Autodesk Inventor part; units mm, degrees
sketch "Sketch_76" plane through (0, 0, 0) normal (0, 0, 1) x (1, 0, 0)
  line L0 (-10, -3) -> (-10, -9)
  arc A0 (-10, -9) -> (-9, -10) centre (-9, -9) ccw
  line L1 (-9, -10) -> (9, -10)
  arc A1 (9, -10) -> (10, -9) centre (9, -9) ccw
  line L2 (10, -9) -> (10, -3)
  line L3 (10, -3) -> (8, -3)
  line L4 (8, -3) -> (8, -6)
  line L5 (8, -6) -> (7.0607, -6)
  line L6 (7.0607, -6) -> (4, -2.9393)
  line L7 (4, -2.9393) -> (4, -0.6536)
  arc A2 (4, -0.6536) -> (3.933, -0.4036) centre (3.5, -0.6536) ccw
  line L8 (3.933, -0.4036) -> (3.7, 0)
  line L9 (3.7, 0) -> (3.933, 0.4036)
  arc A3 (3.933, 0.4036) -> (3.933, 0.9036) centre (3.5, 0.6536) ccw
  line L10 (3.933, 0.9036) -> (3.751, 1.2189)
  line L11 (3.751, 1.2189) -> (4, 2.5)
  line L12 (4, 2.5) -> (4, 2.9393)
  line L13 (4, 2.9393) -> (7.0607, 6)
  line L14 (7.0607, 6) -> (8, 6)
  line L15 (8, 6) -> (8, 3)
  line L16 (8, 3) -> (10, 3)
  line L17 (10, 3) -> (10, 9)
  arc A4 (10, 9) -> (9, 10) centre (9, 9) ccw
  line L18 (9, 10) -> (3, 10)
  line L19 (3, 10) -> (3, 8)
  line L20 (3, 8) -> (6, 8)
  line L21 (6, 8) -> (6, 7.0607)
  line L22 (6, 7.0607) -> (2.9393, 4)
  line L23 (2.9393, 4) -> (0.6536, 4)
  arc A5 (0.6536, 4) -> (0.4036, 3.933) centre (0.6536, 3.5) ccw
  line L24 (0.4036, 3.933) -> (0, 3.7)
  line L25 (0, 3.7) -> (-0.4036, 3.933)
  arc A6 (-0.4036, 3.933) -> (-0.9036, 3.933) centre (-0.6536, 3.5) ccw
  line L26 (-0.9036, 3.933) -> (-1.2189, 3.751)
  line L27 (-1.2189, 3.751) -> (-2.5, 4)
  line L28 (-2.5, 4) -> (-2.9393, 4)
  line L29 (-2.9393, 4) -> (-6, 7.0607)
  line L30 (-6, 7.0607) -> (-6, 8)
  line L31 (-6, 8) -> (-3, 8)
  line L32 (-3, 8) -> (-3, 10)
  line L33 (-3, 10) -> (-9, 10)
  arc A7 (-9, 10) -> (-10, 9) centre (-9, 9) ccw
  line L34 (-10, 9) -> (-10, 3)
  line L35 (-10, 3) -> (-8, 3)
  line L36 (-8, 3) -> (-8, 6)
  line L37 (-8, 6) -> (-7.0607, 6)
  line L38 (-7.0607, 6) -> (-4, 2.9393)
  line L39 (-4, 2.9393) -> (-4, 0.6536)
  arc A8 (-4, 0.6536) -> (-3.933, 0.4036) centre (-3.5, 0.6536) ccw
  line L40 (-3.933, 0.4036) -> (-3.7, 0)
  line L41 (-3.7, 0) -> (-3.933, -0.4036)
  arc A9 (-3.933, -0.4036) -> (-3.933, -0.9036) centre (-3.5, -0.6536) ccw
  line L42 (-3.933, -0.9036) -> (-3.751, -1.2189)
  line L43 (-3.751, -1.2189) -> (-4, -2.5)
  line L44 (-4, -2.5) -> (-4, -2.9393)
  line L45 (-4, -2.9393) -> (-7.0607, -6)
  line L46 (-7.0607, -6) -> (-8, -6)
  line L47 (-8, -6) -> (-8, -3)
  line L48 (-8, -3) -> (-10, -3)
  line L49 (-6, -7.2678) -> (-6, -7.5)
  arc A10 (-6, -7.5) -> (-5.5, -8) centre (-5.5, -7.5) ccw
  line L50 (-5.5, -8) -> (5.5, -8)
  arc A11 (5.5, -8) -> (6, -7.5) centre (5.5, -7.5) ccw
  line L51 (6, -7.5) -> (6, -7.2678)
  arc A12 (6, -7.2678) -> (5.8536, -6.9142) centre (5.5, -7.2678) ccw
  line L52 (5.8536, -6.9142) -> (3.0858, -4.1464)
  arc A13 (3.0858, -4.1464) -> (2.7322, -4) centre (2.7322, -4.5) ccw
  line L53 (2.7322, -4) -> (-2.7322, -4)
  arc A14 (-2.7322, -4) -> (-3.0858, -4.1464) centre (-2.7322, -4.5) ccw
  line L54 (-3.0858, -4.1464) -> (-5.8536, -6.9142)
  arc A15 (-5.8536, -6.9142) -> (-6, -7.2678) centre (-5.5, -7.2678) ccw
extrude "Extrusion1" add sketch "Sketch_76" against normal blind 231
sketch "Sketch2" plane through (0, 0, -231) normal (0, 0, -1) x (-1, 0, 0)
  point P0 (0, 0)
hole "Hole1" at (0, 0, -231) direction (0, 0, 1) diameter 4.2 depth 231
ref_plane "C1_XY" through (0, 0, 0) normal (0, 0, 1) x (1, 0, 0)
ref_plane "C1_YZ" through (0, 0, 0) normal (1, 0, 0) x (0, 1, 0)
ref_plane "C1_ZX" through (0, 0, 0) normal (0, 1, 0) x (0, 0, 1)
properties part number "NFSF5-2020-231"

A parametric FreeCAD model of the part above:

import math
import FreeCAD as App
import Part
import Sketcher
from FreeCAD import Vector
Q = App.Units.Quantity

doc = App.newDocument("Part")
body = doc.addObject("PartDesign::Body", "Body")

# Sketch on XY plane
sketch1 = body.newObject("Sketcher::SketchObject", "Sketch")
sketch1.AttachmentSupport = (doc.getObject("XY_Plane"), [""])
sketch1.MapMode = "FlatFace"
sketch1.addGeometry([
    Part.LineSegment(Vector(-8, -3, 0), Vector(-10, -3, 0)),  # 0
    Part.LineSegment(Vector(-10, -3, 0), Vector(-10, -9, 0)),  # 1
    Part.ArcOfCircle(Part.Circle(Vector(-9, -9, 0), Vector(0, 0, 1), 1), math.radians(180), math.radians(270)),  # 2
    Part.LineSegment(Vector(-9, -10, 0), Vector(9, -10, 0)),  # 3
    Part.ArcOfCircle(Part.Circle(Vector(9, -9, 0), Vector(0, 0, 1), 1), math.radians(-90), math.radians(0)),  # 4
    Part.LineSegment(Vector(10, -9, 0), Vector(10, -3, 0)),  # 5
    Part.LineSegment(Vector(10, -3, 0), Vector(8, -3, 0)),  # 6
    Part.LineSegment(Vector(8, -3, 0), Vector(8, -6, 0)),  # 7
    Part.LineSegment(Vector(8, -6, 0), Vector(7.0607, -6, 0)),  # 8
    Part.LineSegment(Vector(7.0607, -6, 0), Vector(4, -2.9393, 0)),  # 9
    Part.LineSegment(Vector(4, -2.9393, 0), Vector(4, -0.6536, 0)),  # 10
    Part.ArcOfCircle(Part.Circle(Vector(3.5, -0.6536, 0), Vector(0, 0, 1), 0.5), math.radians(0), math.radians(30.000728)),  # 11
    Part.LineSegment(Vector(3.933, -0.4036, 0), Vector(3.7, 0, 0)),  # 12
    Part.LineSegment(Vector(3.7, 0, 0), Vector(3.933, 0.4036, 0)),  # 13
    Part.ArcOfCircle(Part.Circle(Vector(3.5, 0.6536, 0), Vector(0, 0, 1), 0.499989), math.radians(-30.000728), math.radians(30.000728)),  # 14
    Part.LineSegment(Vector(3.933, 0.9036, 0), Vector(3.751, 1.2189, 0)),  # 15
    Part.LineSegment(Vector(3.751, 1.2189, 0), Vector(4, 2.5, 0)),  # 16
    Part.LineSegment(Vector(4, 2.5, 0), Vector(4, 2.9393, 0)),  # 17
    Part.LineSegment(Vector(4, 2.9393, 0), Vector(7.0607, 6, 0)),  # 18
    Part.LineSegment(Vector(7.0607, 6, 0), Vector(8, 6, 0)),  # 19
    Part.LineSegment(Vector(8, 6, 0), Vector(8, 3, 0)),  # 20
    Part.LineSegment(Vector(8, 3, 0), Vector(10, 3, 0)),  # 21
    Part.LineSegment(Vector(10, 3, 0), Vector(10, 9, 0)),  # 22
    Part.ArcOfCircle(Part.Circle(Vector(9, 9, 0), Vector(0, 0, 1), 1), math.radians(0), math.radians(90)),  # 23
    Part.LineSegment(Vector(9, 10, 0), Vector(3, 10, 0)),  # 24
    Part.LineSegment(Vector(3, 10, 0), Vector(3, 8, 0)),  # 25
    Part.LineSegment(Vector(3, 8, 0), Vector(6, 8, 0)),  # 26
    Part.LineSegment(Vector(6, 8, 0), Vector(6, 7.0607, 0)),  # 27
    Part.LineSegment(Vector(6, 7.0607, 0), Vector(2.9393, 4, 0)),  # 28
    Part.LineSegment(Vector(2.9393, 4, 0), Vector(0.6536, 4, 0)),  # 29
    Part.ArcOfCircle(Part.Circle(Vector(0.6536, 3.5, 0), Vector(0, 0, 1), 0.5), math.radians(90), math.radians(120.000728)),  # 30
    Part.LineSegment(Vector(0.4036, 3.933, 0), Vector(0, 3.7, 0)),  # 31
    Part.LineSegment(Vector(0, 3.7, 0), Vector(-0.4036, 3.933, 0)),  # 32
    Part.ArcOfCircle(Part.Circle(Vector(-0.6536, 3.5, 0), Vector(0, 0, 1), 0.499989), math.radians(59.999272), math.radians(120.000728)),  # 33
    Part.LineSegment(Vector(-0.9036, 3.933, 0), Vector(-1.2189, 3.751, 0)),  # 34
    Part.LineSegment(Vector(-1.2189, 3.751, 0), Vector(-2.5, 4, 0)),  # 35
    Part.LineSegment(Vector(-2.5, 4, 0), Vector(-2.9393, 4, 0)),  # 36
    Part.LineSegment(Vector(-2.9393, 4, 0), Vector(-6, 7.0607, 0)),  # 37
    Part.LineSegment(Vector(-6, 7.0607, 0), Vector(-6, 8, 0)),  # 38
    Part.LineSegment(Vector(-6, 8, 0), Vector(-3, 8, 0)),  # 39
    Part.LineSegment(Vector(-3, 8, 0), Vector(-3, 10, 0)),  # 40
    Part.LineSegment(Vector(-3, 10, 0), Vector(-9, 10, 0)),  # 41
    Part.ArcOfCircle(Part.Circle(Vector(-9, 9, 0), Vector(0, 0, 1), 1), math.radians(90), math.radians(180)),  # 42
    Part.LineSegment(Vector(-10, 9, 0), Vector(-10, 3, 0)),  # 43
    Part.LineSegment(Vector(-10, 3, 0), Vector(-8, 3, 0)),  # 44
    Part.LineSegment(Vector(-8, 3, 0), Vector(-8, 6, 0)),  # 45
    Part.LineSegment(Vector(-8, 6, 0), Vector(-7.0607, 6, 0)),  # 46
    Part.LineSegment(Vector(-7.0607, 6, 0), Vector(-4, 2.9393, 0)),  # 47
    Part.LineSegment(Vector(-4, 2.9393, 0), Vector(-4, 0.6536, 0)),  # 48
    Part.ArcOfCircle(Part.Circle(Vector(-3.5, 0.6536, 0), Vector(0, 0, 1), 0.5), math.radians(180), math.radians(210.000728)),  # 49
    Part.LineSegment(Vector(-3.933, 0.4036, 0), Vector(-3.7, 0, 0)),  # 50
    Part.LineSegment(Vector(-3.7, 0, 0), Vector(-3.933, -0.4036, 0)),  # 51
    Part.ArcOfCircle(Part.Circle(Vector(-3.5, -0.6536, 0), Vector(0, 0, 1), 0.499989), math.radians(149.999272), math.radians(210.000728)),  # 52
    Part.LineSegment(Vector(-3.933, -0.9036, 0), Vector(-3.751, -1.2189, 0)),  # 53
    Part.LineSegment(Vector(-3.751, -1.2189, 0), Vector(-4, -2.5, 0)),  # 54
    Part.LineSegment(Vector(-4, -2.5, 0), Vector(-4, -2.9393, 0)),  # 55
    Part.LineSegment(Vector(-4, -2.9393, 0), Vector(-7.0607, -6, 0)),  # 56
    Part.LineSegment(Vector(-7.0607, -6, 0), Vector(-8, -6, 0)),  # 57
    Part.LineSegment(Vector(-8, -6, 0), Vector(-8, -3, 0)),  # 58
    Part.LineSegment(Vector(-6, -7.5, 0), Vector(-6, -7.2678, 0)),  # 59
    Part.ArcOfCircle(Part.Circle(Vector(-5.5, -7.2678, 0), Vector(0, 0, 1), 0.500066), math.radians(135), math.radians(180)),  # 60
    Part.LineSegment(Vector(-5.8536, -6.9142, 0), Vector(-3.0858, -4.1464, 0)),  # 61
    Part.ArcOfCircle(Part.Circle(Vector(-2.7322, -4.5, 0), Vector(0, 0, 1), 0.5), math.radians(90), math.radians(135)),  # 62
    Part.LineSegment(Vector(-2.7322, -4, 0), Vector(2.7322, -4, 0)),  # 63
    Part.ArcOfCircle(Part.Circle(Vector(2.7322, -4.5, 0), Vector(0, 0, 1), 0.500066), math.radians(45), math.radians(90)),  # 64
    Part.LineSegment(Vector(3.0858, -4.1464, 0), Vector(5.8536, -6.9142, 0)),  # 65
    Part.ArcOfCircle(Part.Circle(Vector(5.5, -7.2678, 0), Vector(0, 0, 1), 0.5), math.radians(0), math.radians(45)),  # 66
    Part.LineSegment(Vector(6, -7.2678, 0), Vector(6, -7.5, 0)),  # 67
    Part.ArcOfCircle(Part.Circle(Vector(5.5, -7.5, 0), Vector(0, 0, 1), 0.5), math.radians(-90), math.radians(0)),  # 68
    Part.LineSegment(Vector(5.5, -8, 0), Vector(-5.5, -8, 0)),  # 69
    Part.ArcOfCircle(Part.Circle(Vector(-5.5, -7.5, 0), Vector(0, 0, 1), 0.5), math.radians(180), math.radians(270)),  # 70
], False)
sketch1.addConstraint([
    Sketcher.Constraint("Coincident", 0, 2, 1, 1),
    Sketcher.Constraint("Tangent", 1, 2, 2, 1),
    Sketcher.Constraint("Tangent", 2, 2, 3, 1),
    Sketcher.Constraint("Tangent", 3, 2, 4, 1),
    Sketcher.Constraint("Tangent", 4, 2, 5, 1),
    Sketcher.Constraint("Coincident", 5, 2, 6, 1),
    Sketcher.Constraint("Coincident", 6, 2, 7, 1),
    Sketcher.Constraint("Coincident", 7, 2, 8, 1),
    Sketcher.Constraint("Coincident", 8, 2, 9, 1),
    Sketcher.Constraint("Coincident", 9, 2, 10, 1),
    Sketcher.Constraint("Tangent", 10, 2, 11, 1),
    Sketcher.Constraint("Tangent", 11, 2, 12, 1),
    Sketcher.Constraint("Coincident", 12, 2, 13, 1),
    Sketcher.Constraint("Tangent", 13, 2, 14, 1),
    Sketcher.Constraint("Tangent", 14, 2, 15, 1),
    Sketcher.Constraint("Coincident", 15, 2, 16, 1),
    Sketcher.Constraint("Coincident", 16, 2, 17, 1),
    Sketcher.Constraint("Coincident", 17, 2, 18, 1),
    Sketcher.Constraint("Coincident", 18, 2, 19, 1),
    Sketcher.Constraint("Coincident", 19, 2, 20, 1),
    Sketcher.Constraint("Coincident", 20, 2, 21, 1),
    Sketcher.Constraint("Coincident", 21, 2, 22, 1),
    Sketcher.Constraint("Tangent", 22, 2, 23, 1),
    Sketcher.Constraint("Tangent", 23, 2, 24, 1),
    Sketcher.Constraint("Coincident", 24, 2, 25, 1),
    Sketcher.Constraint("Coincident", 25, 2, 26, 1),
    Sketcher.Constraint("Coincident", 26, 2, 27, 1),
    Sketcher.Constraint("Coincident", 27, 2, 28, 1),
    Sketcher.Constraint("Coincident", 28, 2, 29, 1),
    Sketcher.Constraint("Tangent", 29, 2, 30, 1),
    Sketcher.Constraint("Tangent", 30, 2, 31, 1),
    Sketcher.Constraint("Coincident", 31, 2, 32, 1),
    Sketcher.Constraint("Tangent", 32, 2, 33, 1),
    Sketcher.Constraint("Tangent", 33, 2, 34, 1),
    Sketcher.Constraint("Coincident", 34, 2, 35, 1),
    Sketcher.Constraint("Coincident", 35, 2, 36, 1),
    Sketcher.Constraint("Coincident", 36, 2, 37, 1),
    Sketcher.Constraint("Coincident", 37, 2, 38, 1),
    Sketcher.Constraint("Coincident", 38, 2, 39, 1),
    Sketcher.Constraint("Coincident", 39, 2, 40, 1),
    Sketcher.Constraint("Coincident", 40, 2, 41, 1),
    Sketcher.Constraint("Tangent", 41, 2, 42, 1),
    Sketcher.Constraint("Tangent", 42, 2, 43, 1),
    Sketcher.Constraint("Coincident", 43, 2, 44, 1),
    Sketcher.Constraint("Coincident", 44, 2, 45, 1),
    Sketcher.Constraint("Coincident", 45, 2, 46, 1),
    Sketcher.Constraint("Coincident", 46, 2, 47, 1),
    Sketcher.Constraint("Coincident", 47, 2, 48, 1),
    Sketcher.Constraint("Tangent", 48, 2, 49, 1),
    Sketcher.Constraint("Tangent", 49, 2, 50, 1),
    Sketcher.Constraint("Coincident", 50, 2, 51, 1),
    Sketcher.Constraint("Tangent", 51, 2, 52, 1),
    Sketcher.Constraint("Tangent", 52, 2, 53, 1),
    Sketcher.Constraint("Coincident", 53, 2, 54, 1),
    Sketcher.Constraint("Coincident", 54, 2, 55, 1),
    Sketcher.Constraint("Coincident", 55, 2, 56, 1),
    Sketcher.Constraint("Coincident", 56, 2, 57, 1),
    Sketcher.Constraint("Coincident", 57, 2, 58, 1),
    Sketcher.Constraint("Coincident", 58, 2, 0, 1),
    Sketcher.Constraint("Tangent", 59, 2, 60, 2),
    Sketcher.Constraint("Tangent", 60, 1, 61, 1),
    Sketcher.Constraint("Tangent", 61, 2, 62, 2),
    Sketcher.Constraint("Tangent", 62, 1, 63, 1),
    Sketcher.Constraint("Tangent", 63, 2, 64, 2),
    Sketcher.Constraint("Tangent", 64, 1, 65, 1),
    Sketcher.Constraint("Tangent", 65, 2, 66, 2),
    Sketcher.Constraint("Tangent", 66, 1, 67, 1),
    Sketcher.Constraint("Tangent", 67, 2, 68, 2),
    Sketcher.Constraint("Tangent", 68, 1, 69, 1),
    Sketcher.Constraint("Tangent", 69, 2, 70, 2),
    Sketcher.Constraint("Tangent", 70, 1, 59, 1),
    Sketcher.Constraint("Horizontal", 0),
    Sketcher.Constraint("Vertical", 1),
    Sketcher.Constraint("Horizontal", 3),
    Sketcher.Constraint("Vertical", 5),
    Sketcher.Constraint("Horizontal", 6),
    Sketcher.Constraint("Vertical", 7),
    Sketcher.Constraint("Horizontal", 8),
    Sketcher.Constraint("Vertical", 10),
    Sketcher.Constraint("Vertical", 17),
    Sketcher.Constraint("Horizontal", 19),
    Sketcher.Constraint("Vertical", 20),
    Sketcher.Constraint("Horizontal", 21),
    Sketcher.Constraint("Vertical", 22),
    Sketcher.Constraint("Horizontal", 24),
    Sketcher.Constraint("Vertical", 25),
    Sketcher.Constraint("Horizontal", 26),
    Sketcher.Constraint("Vertical", 27),
    Sketcher.Constraint("Horizontal", 29),
    Sketcher.Constraint("Horizontal", 36),
    Sketcher.Constraint("Vertical", 38),
    Sketcher.Constraint("Horizontal", 39),
    Sketcher.Constraint("Vertical", 40),
    Sketcher.Constraint("Horizontal", 41),
    Sketcher.Constraint("Vertical", 43),
    Sketcher.Constraint("Horizontal", 44),
    Sketcher.Constraint("Vertical", 45),
    Sketcher.Constraint("Horizontal", 46),
    Sketcher.Constraint("Vertical", 48),
    Sketcher.Constraint("Vertical", 55),
    Sketcher.Constraint("Horizontal", 57),
    Sketcher.Constraint("Vertical", 58),
    Sketcher.Constraint("Vertical", 59),
    Sketcher.Constraint("Horizontal", 63),
    Sketcher.Constraint("Vertical", 67),
    Sketcher.Constraint("Horizontal", 69),
    Sketcher.Constraint("Equal", 2, 4),
    Sketcher.Constraint("Equal", 11, 14),
    Sketcher.Constraint("Equal", 4, 23),
    Sketcher.Constraint("Equal", 14, 30),
    Sketcher.Constraint("Equal", 30, 33),
    Sketcher.Constraint("Equal", 23, 42),
    Sketcher.Constraint("Equal", 33, 49),
    Sketcher.Constraint("Equal", 49, 52),
    Sketcher.Constraint("Equal", 52, 60),
    Sketcher.Constraint("Equal", 60, 62),
    Sketcher.Constraint("Equal", 62, 64),
    Sketcher.Constraint("Equal", 64, 66),
    Sketcher.Constraint("Equal", 66, 68),
    Sketcher.Constraint("Equal", 68, 70),
    Sketcher.Constraint("Symmetric", 2, 3, 23, 3, -1, 1),
    Sketcher.Constraint("Symmetric", 4, 3, 42, 3, -1, 1),
    Sketcher.Constraint("Symmetric", 11, 3, 49, 3, -1, 1),
    Sketcher.Constraint("Symmetric", 14, 3, 52, 3, -1, 1),
    Sketcher.Constraint("Symmetric", 6, 2, 44, 2, -1, 1),
    Sketcher.Constraint("Symmetric", 8, 2, 46, 2, -1, 1),
    Sketcher.Constraint("Symmetric", 12, 2, 50, 2, -1, 1),
    Sketcher.Constraint("Symmetric", 15, 2, 53, 2, -1, 1),
    Sketcher.Constraint("Symmetric", 16, 2, 54, 2, -1, 1),
    Sketcher.Constraint("Symmetric", 18, 2, 56, 2, -1, 1),
    Sketcher.Constraint("Symmetric", 20, 2, 58, 2, -1, 1),
    Sketcher.Constraint("Symmetric", 30, 3, 33, 3, -2),
    Sketcher.Constraint("Symmetric", 14, 3, 49, 3, -2),
    Sketcher.Constraint("Symmetric", 60, 3, 66, 3, -2),
    Sketcher.Constraint("Symmetric", 0, 2, 5, 2, -2),
    Sketcher.Constraint("Symmetric", 28, 2, 36, 2, -2),
    Sketcher.Constraint("Symmetric", 27, 2, 37, 2, -2),
    Sketcher.Constraint("Symmetric", 25, 2, 39, 2, -2),
    Sketcher.Constraint("Symmetric", 19, 2, 45, 2, -2),
    Sketcher.Constraint("Symmetric", 17, 2, 47, 2, -2),
    Sketcher.Constraint("PointOnObject", 12, 2, -1),
    Sketcher.Constraint("PointOnObject", 31, 2, -2),
    Sketcher.Constraint("Parallel", 12, 15),
    Sketcher.Constraint("Perpendicular", 9, 18),
    Sketcher.Constraint("Parallel", 18, 28),
    Sketcher.Constraint("Perpendicular", 15, 31),
    Sketcher.Constraint("Parallel", 31, 34),
    Sketcher.Constraint("Perpendicular", 16, 35),
    Sketcher.Constraint("Perpendicular", 28, 37),
    Sketcher.Constraint("Parallel", 37, 47),
    Sketcher.Constraint("Perpendicular", 47, 56),
    Sketcher.Constraint("Parallel", 56, 61),
    Sketcher.Constraint("Perpendicular", 61, 65),
    Sketcher.Constraint("Vertical", 38, 2, 59, 2),
    Sketcher.Constraint("Equal", 41, 1),
    Sketcher.Constraint("Equal", 39, 7),
    Sketcher.Constraint("Equal", 29, 10),
    Sketcher.Constraint("Equal", 36, 17),
    Sketcher.Constraint("Equal", 44, 25),
    Sketcher.Constraint("Equal", 57, 27),
    Sketcher.Constraint("Equal", 18, 28),
    Sketcher.Constraint("Equal", 13, 31),
    Sketcher.Constraint("Radius", 2, 1.0),
    Sketcher.Constraint("Radius", 11, 0.5),
    Sketcher.Constraint("DistanceX", 0, 2, 0, 1, 2.0),
    Sketcher.Constraint("DistanceX", 3, 1, 3, 2, 18.0),
    Sketcher.Constraint("DistanceX", 24, 2, 24, 1, 6.0),
    Sketcher.Constraint("DistanceX", 26, 1, 26, 2, 3.0),
    Sketcher.Constraint("Angle", 16, Q("79.001 deg")),
    Sketcher.Constraint("DistanceX", -1, 1, 9, 2, 4.0),
    Sketcher.Constraint("DistanceY", 62, 1, -1, 1, 4.0),
    Sketcher.Constraint("DistanceY", 68, 1, -1, 1, 8.0),
    Sketcher.Constraint("DistanceX", -1, 1, 12, 2, 3.7),
    Sketcher.Constraint("DistanceY", -1, 1, 16, 2, 2.5),
    Sketcher.Constraint("Distance", 12, 0.466),
    Sketcher.Constraint("DistanceX", 8, 2, 8, 1, 0.9393),
    Sketcher.Constraint("DistanceX", 63, 1, 63, 2, 5.4644),
])
pad1 = body.newObject("PartDesign::Pad", "Pad")
pad1.Profile = sketch1
pad1.Length = 231
pad1.Reversed = True

# Sketch on XY plane
sketch2 = body.newObject("Sketcher::SketchObject", "Sketch001")
sketch2.AttachmentSupport = (doc.getObject("XY_Plane"), [""])
sketch2.MapMode = "FlatFace"
sketch2.AttachmentOffset = App.Placement(Vector(0, 0, -231), App.Rotation())
sketch2.addGeometry(Part.Circle(Vector(0, 0, 0), Vector(0, 0, 1), 2.1), False)
sketch2.addConstraint([
    Sketcher.Constraint("Coincident", 0, 3, -1, 1),
    Sketcher.Constraint("Diameter", 0, 4.2),
])
doc.recompute()
hole = body.newObject("PartDesign::Hole", "Hole")
hole.Profile = sketch2
hole.ThreadType = "None"
hole.Diameter = 4.2
hole.DepthType = "Dimension"
hole.Depth = 231
hole.DrillPoint = "Flat"
hole.Reversed = True

doc.recompute()
